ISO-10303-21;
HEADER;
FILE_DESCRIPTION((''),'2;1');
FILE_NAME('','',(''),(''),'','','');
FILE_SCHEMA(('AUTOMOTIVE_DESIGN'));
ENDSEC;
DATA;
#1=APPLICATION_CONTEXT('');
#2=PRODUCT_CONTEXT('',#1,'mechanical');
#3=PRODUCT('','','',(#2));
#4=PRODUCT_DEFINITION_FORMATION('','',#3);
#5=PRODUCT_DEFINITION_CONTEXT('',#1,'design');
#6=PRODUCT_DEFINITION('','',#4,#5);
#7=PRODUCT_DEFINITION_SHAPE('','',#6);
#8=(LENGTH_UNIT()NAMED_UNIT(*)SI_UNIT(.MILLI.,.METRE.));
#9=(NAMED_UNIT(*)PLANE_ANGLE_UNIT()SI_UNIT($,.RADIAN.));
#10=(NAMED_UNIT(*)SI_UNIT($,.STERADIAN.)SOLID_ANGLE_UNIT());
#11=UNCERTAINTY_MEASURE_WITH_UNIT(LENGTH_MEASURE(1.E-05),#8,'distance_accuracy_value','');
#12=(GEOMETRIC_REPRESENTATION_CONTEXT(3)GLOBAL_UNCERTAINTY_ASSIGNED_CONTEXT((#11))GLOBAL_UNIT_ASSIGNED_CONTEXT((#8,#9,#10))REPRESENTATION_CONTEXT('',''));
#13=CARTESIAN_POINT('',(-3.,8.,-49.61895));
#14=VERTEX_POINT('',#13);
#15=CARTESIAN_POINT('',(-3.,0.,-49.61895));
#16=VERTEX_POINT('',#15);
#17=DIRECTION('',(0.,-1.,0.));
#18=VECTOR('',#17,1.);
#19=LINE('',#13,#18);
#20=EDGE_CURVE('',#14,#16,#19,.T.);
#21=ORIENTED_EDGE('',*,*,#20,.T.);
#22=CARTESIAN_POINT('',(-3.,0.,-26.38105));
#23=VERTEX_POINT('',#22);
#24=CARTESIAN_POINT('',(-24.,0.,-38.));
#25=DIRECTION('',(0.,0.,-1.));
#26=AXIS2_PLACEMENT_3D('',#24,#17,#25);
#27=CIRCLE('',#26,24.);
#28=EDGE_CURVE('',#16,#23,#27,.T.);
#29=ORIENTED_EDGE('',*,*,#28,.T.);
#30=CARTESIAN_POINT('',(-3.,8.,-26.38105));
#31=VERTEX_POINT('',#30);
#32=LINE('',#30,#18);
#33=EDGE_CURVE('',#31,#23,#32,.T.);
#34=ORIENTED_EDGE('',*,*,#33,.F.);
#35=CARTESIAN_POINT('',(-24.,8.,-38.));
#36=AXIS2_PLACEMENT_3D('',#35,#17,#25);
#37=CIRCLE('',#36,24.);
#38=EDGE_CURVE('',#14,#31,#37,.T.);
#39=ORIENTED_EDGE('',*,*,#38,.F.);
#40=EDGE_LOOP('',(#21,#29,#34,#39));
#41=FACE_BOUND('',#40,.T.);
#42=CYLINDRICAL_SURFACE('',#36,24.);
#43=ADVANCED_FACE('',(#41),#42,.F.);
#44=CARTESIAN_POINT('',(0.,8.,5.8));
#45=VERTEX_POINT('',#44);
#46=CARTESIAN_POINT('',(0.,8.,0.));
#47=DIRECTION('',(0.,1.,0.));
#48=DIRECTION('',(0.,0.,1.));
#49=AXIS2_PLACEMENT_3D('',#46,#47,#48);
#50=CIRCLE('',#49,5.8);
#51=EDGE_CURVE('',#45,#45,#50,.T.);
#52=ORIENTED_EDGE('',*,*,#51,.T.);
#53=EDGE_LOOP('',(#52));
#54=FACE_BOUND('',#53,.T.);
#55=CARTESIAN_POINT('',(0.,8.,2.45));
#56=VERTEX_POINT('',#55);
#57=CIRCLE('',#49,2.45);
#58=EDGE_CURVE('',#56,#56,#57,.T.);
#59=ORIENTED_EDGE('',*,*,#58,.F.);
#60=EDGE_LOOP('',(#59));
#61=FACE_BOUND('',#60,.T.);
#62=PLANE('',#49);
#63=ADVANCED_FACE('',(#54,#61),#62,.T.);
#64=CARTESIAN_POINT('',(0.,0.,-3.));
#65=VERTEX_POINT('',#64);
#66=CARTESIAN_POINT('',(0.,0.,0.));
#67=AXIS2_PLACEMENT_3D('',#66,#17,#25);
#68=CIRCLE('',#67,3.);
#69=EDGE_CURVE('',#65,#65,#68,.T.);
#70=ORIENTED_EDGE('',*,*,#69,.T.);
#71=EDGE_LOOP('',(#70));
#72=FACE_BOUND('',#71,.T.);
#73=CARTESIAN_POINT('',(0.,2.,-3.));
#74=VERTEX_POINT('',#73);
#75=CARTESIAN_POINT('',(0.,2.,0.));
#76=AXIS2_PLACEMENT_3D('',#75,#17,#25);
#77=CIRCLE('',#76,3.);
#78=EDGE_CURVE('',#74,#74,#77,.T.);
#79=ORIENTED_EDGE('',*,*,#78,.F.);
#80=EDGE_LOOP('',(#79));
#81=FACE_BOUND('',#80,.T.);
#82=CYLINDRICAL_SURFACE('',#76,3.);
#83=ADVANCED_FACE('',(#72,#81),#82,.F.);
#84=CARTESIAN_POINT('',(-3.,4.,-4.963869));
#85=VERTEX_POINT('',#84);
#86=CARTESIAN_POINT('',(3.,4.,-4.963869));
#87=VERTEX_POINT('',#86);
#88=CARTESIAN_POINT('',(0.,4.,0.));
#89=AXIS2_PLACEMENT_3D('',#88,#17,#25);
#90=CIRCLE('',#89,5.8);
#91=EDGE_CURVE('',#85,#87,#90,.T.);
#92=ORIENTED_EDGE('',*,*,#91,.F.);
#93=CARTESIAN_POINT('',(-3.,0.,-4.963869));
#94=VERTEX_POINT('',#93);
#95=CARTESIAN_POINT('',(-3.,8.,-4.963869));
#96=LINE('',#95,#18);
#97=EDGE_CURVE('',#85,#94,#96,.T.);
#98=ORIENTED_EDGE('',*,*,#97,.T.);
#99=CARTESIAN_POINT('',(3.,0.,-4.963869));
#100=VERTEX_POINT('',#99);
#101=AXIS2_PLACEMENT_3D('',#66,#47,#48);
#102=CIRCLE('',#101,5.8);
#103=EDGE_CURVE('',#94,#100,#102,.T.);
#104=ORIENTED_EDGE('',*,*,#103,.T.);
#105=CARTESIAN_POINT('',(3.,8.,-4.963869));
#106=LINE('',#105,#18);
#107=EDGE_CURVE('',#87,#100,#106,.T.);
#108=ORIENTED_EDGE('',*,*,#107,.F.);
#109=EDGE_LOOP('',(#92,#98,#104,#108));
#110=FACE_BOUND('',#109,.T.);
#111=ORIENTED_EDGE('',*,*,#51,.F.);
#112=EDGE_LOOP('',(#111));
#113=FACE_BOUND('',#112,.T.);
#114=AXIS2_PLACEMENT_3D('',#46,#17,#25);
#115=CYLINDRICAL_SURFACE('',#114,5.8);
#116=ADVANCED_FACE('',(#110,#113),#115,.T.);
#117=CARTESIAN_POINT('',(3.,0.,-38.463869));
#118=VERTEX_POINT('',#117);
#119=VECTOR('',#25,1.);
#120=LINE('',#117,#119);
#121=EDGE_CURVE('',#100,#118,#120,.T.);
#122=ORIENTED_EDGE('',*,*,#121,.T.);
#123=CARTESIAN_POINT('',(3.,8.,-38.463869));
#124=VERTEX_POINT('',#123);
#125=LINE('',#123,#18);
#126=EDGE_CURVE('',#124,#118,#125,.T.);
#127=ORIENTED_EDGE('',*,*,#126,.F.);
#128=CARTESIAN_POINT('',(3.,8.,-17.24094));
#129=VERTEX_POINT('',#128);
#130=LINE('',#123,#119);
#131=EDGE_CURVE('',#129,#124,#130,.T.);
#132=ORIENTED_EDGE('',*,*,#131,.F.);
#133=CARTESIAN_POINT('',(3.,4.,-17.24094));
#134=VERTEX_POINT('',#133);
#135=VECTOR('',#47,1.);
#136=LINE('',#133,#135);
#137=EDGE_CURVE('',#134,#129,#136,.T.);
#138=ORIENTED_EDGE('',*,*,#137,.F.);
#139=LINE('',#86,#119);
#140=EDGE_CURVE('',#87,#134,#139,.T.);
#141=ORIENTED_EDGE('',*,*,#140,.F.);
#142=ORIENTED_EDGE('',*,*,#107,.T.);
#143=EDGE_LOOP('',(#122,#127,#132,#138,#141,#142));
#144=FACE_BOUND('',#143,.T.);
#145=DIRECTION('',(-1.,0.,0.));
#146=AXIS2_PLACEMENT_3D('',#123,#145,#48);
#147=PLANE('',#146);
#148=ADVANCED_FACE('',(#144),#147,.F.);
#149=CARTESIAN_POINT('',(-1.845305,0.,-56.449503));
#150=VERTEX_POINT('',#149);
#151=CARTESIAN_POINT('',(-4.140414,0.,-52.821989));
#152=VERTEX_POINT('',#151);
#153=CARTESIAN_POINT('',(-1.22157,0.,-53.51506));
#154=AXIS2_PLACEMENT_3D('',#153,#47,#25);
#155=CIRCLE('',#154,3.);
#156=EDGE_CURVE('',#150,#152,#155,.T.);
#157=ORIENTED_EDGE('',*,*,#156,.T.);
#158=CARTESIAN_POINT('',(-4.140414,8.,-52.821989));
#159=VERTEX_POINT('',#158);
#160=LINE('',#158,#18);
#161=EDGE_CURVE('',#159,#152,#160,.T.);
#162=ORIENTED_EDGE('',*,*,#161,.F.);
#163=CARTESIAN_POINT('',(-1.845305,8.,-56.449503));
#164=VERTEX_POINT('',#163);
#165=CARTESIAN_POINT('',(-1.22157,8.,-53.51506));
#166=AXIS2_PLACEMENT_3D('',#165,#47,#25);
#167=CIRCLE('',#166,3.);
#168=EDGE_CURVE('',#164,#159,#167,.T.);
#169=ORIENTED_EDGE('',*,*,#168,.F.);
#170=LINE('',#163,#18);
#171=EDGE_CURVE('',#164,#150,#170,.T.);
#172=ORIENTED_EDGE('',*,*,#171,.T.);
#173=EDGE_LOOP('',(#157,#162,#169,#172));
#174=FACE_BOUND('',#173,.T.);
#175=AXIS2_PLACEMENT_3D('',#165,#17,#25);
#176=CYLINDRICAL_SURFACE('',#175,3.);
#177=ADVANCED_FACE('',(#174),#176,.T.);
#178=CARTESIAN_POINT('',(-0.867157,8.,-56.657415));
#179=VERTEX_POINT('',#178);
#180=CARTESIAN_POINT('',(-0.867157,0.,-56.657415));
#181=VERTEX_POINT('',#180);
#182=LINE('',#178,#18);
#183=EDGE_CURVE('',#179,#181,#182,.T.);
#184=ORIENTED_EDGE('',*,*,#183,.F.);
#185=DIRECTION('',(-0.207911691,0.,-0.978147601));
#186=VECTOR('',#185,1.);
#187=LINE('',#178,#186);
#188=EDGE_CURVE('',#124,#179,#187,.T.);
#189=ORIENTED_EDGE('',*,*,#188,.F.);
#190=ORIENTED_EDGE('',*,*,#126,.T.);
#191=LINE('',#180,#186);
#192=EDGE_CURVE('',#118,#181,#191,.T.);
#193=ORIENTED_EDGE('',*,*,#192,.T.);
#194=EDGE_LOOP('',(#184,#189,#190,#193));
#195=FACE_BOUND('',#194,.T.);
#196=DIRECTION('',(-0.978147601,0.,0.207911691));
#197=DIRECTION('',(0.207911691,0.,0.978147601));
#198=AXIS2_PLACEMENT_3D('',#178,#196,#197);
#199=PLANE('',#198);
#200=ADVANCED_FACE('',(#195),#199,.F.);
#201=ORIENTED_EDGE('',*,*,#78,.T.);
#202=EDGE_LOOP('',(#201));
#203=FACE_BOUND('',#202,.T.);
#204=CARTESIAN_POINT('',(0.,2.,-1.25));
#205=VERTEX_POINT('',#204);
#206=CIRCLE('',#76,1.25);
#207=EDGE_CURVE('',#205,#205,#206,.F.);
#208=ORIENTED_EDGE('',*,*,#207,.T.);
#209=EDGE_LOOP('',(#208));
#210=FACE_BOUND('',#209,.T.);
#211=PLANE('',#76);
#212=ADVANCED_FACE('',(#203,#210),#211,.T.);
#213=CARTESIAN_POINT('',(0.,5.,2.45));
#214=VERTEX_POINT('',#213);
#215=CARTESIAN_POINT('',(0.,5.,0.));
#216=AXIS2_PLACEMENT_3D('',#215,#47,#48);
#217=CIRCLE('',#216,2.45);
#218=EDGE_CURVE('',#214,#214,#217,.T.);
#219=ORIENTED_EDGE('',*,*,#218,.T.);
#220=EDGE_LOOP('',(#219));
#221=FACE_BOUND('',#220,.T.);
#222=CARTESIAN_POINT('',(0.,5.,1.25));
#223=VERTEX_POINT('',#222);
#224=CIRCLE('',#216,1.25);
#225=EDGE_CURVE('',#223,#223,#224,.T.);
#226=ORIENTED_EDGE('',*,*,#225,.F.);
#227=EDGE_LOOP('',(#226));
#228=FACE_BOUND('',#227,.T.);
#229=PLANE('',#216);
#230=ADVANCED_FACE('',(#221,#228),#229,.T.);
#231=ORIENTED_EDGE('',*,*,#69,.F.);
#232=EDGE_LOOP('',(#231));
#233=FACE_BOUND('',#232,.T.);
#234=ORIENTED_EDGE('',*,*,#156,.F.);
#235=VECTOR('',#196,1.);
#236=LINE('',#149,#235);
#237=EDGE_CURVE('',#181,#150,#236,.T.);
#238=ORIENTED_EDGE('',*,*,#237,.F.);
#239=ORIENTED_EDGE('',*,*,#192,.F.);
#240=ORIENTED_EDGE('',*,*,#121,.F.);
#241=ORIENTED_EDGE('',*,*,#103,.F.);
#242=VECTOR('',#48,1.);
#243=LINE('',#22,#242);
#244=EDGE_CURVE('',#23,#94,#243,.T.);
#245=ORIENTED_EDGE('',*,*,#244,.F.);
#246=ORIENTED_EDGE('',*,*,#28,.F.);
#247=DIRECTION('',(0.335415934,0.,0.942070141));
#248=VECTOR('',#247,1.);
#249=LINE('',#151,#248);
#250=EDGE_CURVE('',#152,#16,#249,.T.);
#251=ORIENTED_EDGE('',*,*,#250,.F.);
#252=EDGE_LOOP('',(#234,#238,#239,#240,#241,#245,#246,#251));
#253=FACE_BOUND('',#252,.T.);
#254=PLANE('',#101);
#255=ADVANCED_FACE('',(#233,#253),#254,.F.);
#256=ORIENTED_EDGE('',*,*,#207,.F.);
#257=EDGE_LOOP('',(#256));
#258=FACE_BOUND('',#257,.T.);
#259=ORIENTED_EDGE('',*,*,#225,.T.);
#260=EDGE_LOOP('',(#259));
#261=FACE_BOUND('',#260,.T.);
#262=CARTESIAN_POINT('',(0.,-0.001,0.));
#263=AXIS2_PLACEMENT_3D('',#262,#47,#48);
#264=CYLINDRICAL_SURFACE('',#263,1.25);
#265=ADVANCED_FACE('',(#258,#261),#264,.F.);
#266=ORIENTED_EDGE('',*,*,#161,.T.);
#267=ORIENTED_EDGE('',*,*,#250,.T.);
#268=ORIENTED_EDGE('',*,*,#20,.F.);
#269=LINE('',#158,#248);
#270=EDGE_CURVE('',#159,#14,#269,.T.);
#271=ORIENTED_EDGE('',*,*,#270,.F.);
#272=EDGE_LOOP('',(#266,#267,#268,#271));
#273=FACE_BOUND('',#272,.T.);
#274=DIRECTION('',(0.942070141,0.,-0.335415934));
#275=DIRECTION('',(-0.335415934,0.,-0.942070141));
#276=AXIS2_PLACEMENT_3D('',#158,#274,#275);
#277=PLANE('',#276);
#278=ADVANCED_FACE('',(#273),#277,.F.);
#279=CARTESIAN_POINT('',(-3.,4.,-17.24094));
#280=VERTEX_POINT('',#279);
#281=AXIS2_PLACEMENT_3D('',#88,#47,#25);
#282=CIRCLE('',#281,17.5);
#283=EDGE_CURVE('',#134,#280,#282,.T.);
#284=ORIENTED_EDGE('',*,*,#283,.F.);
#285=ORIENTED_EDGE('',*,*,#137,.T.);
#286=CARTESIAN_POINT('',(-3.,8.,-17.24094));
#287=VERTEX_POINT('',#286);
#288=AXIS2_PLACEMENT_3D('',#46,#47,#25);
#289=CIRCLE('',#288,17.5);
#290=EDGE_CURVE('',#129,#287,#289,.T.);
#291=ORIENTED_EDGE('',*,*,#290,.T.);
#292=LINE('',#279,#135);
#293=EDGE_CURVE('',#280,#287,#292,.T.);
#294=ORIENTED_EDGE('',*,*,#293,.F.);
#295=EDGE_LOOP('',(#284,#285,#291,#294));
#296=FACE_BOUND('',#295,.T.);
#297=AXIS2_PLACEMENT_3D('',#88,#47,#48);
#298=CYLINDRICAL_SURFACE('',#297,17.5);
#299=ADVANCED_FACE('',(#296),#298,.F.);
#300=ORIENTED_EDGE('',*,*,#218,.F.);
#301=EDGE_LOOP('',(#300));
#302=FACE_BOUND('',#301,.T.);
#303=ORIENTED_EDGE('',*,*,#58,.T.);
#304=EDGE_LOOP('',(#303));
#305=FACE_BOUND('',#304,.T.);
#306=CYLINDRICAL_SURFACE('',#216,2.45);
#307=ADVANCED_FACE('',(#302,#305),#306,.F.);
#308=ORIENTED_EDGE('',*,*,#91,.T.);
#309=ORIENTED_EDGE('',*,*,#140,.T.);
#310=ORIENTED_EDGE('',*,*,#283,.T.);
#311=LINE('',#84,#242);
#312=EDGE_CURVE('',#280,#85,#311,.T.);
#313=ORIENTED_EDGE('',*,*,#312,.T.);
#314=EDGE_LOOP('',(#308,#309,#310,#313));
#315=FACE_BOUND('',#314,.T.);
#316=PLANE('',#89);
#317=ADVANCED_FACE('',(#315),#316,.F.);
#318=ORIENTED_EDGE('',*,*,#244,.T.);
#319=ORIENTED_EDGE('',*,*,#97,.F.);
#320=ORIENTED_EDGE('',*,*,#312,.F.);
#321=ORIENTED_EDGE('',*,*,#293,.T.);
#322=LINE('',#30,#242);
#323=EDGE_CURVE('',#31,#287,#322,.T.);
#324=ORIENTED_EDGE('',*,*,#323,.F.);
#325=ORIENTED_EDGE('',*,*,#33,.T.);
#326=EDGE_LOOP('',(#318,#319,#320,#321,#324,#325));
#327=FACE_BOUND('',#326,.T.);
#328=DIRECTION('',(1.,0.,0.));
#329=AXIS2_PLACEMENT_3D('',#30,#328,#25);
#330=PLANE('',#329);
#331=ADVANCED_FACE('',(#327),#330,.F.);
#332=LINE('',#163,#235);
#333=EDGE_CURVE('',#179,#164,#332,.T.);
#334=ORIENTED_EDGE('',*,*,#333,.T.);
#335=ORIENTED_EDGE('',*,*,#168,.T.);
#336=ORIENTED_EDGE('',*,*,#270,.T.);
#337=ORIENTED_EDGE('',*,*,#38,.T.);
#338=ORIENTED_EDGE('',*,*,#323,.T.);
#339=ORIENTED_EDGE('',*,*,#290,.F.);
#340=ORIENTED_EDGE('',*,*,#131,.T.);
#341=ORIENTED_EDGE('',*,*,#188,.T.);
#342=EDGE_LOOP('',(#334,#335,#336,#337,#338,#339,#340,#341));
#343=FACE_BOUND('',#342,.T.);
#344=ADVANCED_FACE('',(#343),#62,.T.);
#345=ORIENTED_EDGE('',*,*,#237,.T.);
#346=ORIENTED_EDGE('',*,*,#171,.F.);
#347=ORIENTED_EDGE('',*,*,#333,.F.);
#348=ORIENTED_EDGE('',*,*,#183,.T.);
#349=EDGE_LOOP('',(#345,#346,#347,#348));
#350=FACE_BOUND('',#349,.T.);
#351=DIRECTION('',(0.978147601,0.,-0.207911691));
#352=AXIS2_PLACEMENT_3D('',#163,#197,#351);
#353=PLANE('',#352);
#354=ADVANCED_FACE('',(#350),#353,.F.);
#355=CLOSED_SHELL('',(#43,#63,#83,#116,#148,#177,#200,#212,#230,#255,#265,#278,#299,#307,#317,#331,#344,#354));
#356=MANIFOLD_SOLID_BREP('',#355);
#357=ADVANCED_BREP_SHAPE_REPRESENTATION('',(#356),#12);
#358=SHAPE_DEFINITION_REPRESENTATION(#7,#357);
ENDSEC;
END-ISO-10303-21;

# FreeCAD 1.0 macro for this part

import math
import FreeCAD as App
import Part
import Sketcher
Q = App.Units.Quantity

doc = App.newDocument("Part")
body = doc.addObject("PartDesign::Body", "Body")

# Sketch on XZ plane
sketch1 = body.newObject("Sketcher::SketchObject", "Sketch")
sketch1.AttachmentSupport = (doc.getObject("XZ_Plane"), [""])
sketch1.MapMode = "FlatFace"
sketch1.addGeometry([
    Part.LineSegment(App.Vector(-3, -26.38105, 0), App.Vector(-3, -4.963869, 0)),  # 0
    Part.ArcOfCircle(Part.Circle(App.Vector(0, 0, 0), App.Vector(0, 0, 1), 5.8), math.radians(-58.85261), math.radians(238.85261)),  # 1
    Part.LineSegment(App.Vector(3, -4.963869, 0), App.Vector(3, -38.463869, 0)),  # 2
    Part.LineSegment(App.Vector(3, -38.463869, 0), App.Vector(-0.867157, -56.657415, 0)),  # 3
    Part.LineSegment(App.Vector(-0.867157, -56.657415, 0), App.Vector(-1.845305, -56.449503, 0)),  # 4
    Part.ArcOfCircle(Part.Circle(App.Vector(-1.22157, -53.51506, 0), App.Vector(0, 0, 1), 3), math.radians(166.642637), math.radians(258)),  # 5
    Part.LineSegment(App.Vector(-4.140414, -52.821989, 0), App.Vector(-3, -49.61895, 0)),  # 6
    Part.ArcOfCircle(Part.Circle(App.Vector(-24, -38, 0), App.Vector(0, 0, 1), 24), math.radians(-28.955024), math.radians(28.955024)),  # 7
], False)
sketch1.addConstraint([
    Sketcher.Constraint("Coincident", 0, 2, 1, 2),
    Sketcher.Constraint("Coincident", 1, 1, 2, 1),
    Sketcher.Constraint("Coincident", 2, 2, 3, 1),
    Sketcher.Constraint("Coincident", 3, 2, 4, 1),
    Sketcher.Constraint("Tangent", 4, 2, 5, 2),
    Sketcher.Constraint("Coincident", 5, 1, 6, 1),
    Sketcher.Constraint("Coincident", 6, 2, 7, 1),
    Sketcher.Constraint("Coincident", 7, 2, 0, 1),
    Sketcher.Constraint("Vertical", 0),
    Sketcher.Constraint("Vertical", 2),
    Sketcher.Constraint("Coincident", 1, 3, -1, 1),
    Sketcher.Constraint("Perpendicular", 3, 4),
    Sketcher.Constraint("Horizontal", 0, 2, 1, 1),
    Sketcher.Constraint("Vertical", 0, 2, 6, 2),
    Sketcher.Constraint("Radius", 5, 3.0),
    Sketcher.Constraint("Radius", 7, 24.0),
    Sketcher.Constraint("Radius", 1, 5.8),
    Sketcher.Constraint("Angle", 3, Q("-102 deg")),
    Sketcher.Constraint("Distance", 4, 1.0),
    Sketcher.Constraint("DistanceY", 2, 2, 2, 1, 33.5),
    Sketcher.Constraint("DistanceX", 7, 3, -1, 1, 24.0),
    Sketcher.Constraint("DistanceY", 7, 3, -1, 1, 38.0),
    Sketcher.Constraint("DistanceX", 0, 2, -1, 1, 3.0),
    Sketcher.Constraint("Distance", 3, 18.6),
    Sketcher.Constraint("Distance", 6, 3.4),
])
pad1 = body.newObject("PartDesign::Pad", "Pad")
pad1.Profile = sketch1
pad1.Length = 8
pad1.Reversed = True

# Sketch on XZ plane
sketch2 = body.newObject("Sketcher::SketchObject", "Sketch001")
sketch2.AttachmentSupport = (doc.getObject("XZ_Plane"), [""])
sketch2.MapMode = "FlatFace"
sketch2.AttachmentOffset = App.Placement(App.Vector(0, 0, -8), App.Rotation())
sketch2.addGeometry(Part.Circle(App.Vector(0, 0, 0), App.Vector(0, 0, 1), 2.45), False)
sketch2.addConstraint([
    Sketcher.Constraint("Coincident", 0, 3, -1, 1),
    Sketcher.Constraint("Diameter", 0, 4.9),
])
pocket1 = body.newObject("PartDesign::Pocket", "Pocket")
pocket1.Profile = sketch2
pocket1.Length = 3
pocket1.Reversed = True

# Sketch on XZ plane
sketch3 = body.newObject("Sketcher::SketchObject", "Sketch002")
sketch3.AttachmentSupport = (doc.getObject("XZ_Plane"), [""])
sketch3.MapMode = "FlatFace"
sketch3.AttachmentOffset = App.Placement(App.Vector(0, 0, -5), App.Rotation())
sketch3.addGeometry(Part.Circle(App.Vector(0, 0, 0), App.Vector(0, 0, 1), 1.25), False)
sketch3.addConstraint([
    Sketcher.Constraint("Coincident", 0, 3, -1, 1),
    Sketcher.Constraint("Diameter", 0, 2.5),
])
pocket2 = body.newObject("PartDesign::Pocket", "Pocket001")
pocket2.Profile = sketch3
pocket2.Type = "UpToFirst"
pocket2.Reversed = True

# Sketch on XZ plane
sketch4 = body.newObject("Sketcher::SketchObject", "Sketch003")
sketch4.AttachmentSupport = (doc.getObject("XZ_Plane"), [""])
sketch4.MapMode = "FlatFace"
sketch4.addGeometry(Part.Circle(App.Vector(0, 0, 0), App.Vector(0, 0, 1), 3), False)
sketch4.addConstraint([
    Sketcher.Constraint("Coincident", 0, 3, -1, 1),
    Sketcher.Constraint("Diameter", 0, 6.0),
])
pocket3 = body.newObject("PartDesign::Pocket", "Pocket002")
pocket3.Profile = sketch4
pocket3.Length = 2

# Sketch on XZ plane
sketch5 = body.newObject("Sketcher::SketchObject", "Sketch004")
sketch5.AttachmentSupport = (doc.getObject("XZ_Plane"), [""])
sketch5.MapMode = "FlatFace"
sketch5.AttachmentOffset = App.Placement(App.Vector(0, 0, -8), App.Rotation())
sketch5.addGeometry([
    Part.LineSegment(App.Vector(-3, -17.24094, 0), App.Vector(-3, -4.963869, 0)),
    Part.ArcOfCircle(Part.Circle(App.Vector(0, 0, 0), App.Vector(0, 0, 1), 5.8), math.radians(-121.14739), math.radians(-58.85261)),
    Part.LineSegment(App.Vector(3, -4.963869, 0), App.Vector(3, -17.24094, 0)),
    Part.ArcOfCircle(Part.Circle(App.Vector(0, 0, 0), App.Vector(0, 0, 1), 17.5), math.radians(-99.87089), math.radians(-80.12911)),
], False)
sketch5.addConstraint([
    Sketcher.Constraint("Coincident", 0, 2, 1, 1),
    Sketcher.Constraint("Coincident", 1, 2, 2, 1),
    Sketcher.Constraint("Coincident", 2, 2, 3, 2),
    Sketcher.Constraint("Coincident", 3, 1, 0, 1),
    Sketcher.Constraint("Vertical", 0),
    Sketcher.Constraint("Vertical", 2),
    Sketcher.Constraint("Coincident", 1, 3, -1, 1),
    Sketcher.Constraint("Coincident", 3, 3, -1, 1),
    Sketcher.Constraint("Horizontal", 0, 2, 1, 2),
    Sketcher.Constraint("Radius", 1, 5.8),
    Sketcher.Constraint("Radius", 3, 17.5),
    Sketcher.Constraint("DistanceX", 0, 2, -1, 1, 3.0),
])
pocket4 = body.newObject("PartDesign::Pocket", "Pocket003")
pocket4.Profile = sketch5
pocket4.Length = 4
pocket4.Reversed = True

doc.recompute()
